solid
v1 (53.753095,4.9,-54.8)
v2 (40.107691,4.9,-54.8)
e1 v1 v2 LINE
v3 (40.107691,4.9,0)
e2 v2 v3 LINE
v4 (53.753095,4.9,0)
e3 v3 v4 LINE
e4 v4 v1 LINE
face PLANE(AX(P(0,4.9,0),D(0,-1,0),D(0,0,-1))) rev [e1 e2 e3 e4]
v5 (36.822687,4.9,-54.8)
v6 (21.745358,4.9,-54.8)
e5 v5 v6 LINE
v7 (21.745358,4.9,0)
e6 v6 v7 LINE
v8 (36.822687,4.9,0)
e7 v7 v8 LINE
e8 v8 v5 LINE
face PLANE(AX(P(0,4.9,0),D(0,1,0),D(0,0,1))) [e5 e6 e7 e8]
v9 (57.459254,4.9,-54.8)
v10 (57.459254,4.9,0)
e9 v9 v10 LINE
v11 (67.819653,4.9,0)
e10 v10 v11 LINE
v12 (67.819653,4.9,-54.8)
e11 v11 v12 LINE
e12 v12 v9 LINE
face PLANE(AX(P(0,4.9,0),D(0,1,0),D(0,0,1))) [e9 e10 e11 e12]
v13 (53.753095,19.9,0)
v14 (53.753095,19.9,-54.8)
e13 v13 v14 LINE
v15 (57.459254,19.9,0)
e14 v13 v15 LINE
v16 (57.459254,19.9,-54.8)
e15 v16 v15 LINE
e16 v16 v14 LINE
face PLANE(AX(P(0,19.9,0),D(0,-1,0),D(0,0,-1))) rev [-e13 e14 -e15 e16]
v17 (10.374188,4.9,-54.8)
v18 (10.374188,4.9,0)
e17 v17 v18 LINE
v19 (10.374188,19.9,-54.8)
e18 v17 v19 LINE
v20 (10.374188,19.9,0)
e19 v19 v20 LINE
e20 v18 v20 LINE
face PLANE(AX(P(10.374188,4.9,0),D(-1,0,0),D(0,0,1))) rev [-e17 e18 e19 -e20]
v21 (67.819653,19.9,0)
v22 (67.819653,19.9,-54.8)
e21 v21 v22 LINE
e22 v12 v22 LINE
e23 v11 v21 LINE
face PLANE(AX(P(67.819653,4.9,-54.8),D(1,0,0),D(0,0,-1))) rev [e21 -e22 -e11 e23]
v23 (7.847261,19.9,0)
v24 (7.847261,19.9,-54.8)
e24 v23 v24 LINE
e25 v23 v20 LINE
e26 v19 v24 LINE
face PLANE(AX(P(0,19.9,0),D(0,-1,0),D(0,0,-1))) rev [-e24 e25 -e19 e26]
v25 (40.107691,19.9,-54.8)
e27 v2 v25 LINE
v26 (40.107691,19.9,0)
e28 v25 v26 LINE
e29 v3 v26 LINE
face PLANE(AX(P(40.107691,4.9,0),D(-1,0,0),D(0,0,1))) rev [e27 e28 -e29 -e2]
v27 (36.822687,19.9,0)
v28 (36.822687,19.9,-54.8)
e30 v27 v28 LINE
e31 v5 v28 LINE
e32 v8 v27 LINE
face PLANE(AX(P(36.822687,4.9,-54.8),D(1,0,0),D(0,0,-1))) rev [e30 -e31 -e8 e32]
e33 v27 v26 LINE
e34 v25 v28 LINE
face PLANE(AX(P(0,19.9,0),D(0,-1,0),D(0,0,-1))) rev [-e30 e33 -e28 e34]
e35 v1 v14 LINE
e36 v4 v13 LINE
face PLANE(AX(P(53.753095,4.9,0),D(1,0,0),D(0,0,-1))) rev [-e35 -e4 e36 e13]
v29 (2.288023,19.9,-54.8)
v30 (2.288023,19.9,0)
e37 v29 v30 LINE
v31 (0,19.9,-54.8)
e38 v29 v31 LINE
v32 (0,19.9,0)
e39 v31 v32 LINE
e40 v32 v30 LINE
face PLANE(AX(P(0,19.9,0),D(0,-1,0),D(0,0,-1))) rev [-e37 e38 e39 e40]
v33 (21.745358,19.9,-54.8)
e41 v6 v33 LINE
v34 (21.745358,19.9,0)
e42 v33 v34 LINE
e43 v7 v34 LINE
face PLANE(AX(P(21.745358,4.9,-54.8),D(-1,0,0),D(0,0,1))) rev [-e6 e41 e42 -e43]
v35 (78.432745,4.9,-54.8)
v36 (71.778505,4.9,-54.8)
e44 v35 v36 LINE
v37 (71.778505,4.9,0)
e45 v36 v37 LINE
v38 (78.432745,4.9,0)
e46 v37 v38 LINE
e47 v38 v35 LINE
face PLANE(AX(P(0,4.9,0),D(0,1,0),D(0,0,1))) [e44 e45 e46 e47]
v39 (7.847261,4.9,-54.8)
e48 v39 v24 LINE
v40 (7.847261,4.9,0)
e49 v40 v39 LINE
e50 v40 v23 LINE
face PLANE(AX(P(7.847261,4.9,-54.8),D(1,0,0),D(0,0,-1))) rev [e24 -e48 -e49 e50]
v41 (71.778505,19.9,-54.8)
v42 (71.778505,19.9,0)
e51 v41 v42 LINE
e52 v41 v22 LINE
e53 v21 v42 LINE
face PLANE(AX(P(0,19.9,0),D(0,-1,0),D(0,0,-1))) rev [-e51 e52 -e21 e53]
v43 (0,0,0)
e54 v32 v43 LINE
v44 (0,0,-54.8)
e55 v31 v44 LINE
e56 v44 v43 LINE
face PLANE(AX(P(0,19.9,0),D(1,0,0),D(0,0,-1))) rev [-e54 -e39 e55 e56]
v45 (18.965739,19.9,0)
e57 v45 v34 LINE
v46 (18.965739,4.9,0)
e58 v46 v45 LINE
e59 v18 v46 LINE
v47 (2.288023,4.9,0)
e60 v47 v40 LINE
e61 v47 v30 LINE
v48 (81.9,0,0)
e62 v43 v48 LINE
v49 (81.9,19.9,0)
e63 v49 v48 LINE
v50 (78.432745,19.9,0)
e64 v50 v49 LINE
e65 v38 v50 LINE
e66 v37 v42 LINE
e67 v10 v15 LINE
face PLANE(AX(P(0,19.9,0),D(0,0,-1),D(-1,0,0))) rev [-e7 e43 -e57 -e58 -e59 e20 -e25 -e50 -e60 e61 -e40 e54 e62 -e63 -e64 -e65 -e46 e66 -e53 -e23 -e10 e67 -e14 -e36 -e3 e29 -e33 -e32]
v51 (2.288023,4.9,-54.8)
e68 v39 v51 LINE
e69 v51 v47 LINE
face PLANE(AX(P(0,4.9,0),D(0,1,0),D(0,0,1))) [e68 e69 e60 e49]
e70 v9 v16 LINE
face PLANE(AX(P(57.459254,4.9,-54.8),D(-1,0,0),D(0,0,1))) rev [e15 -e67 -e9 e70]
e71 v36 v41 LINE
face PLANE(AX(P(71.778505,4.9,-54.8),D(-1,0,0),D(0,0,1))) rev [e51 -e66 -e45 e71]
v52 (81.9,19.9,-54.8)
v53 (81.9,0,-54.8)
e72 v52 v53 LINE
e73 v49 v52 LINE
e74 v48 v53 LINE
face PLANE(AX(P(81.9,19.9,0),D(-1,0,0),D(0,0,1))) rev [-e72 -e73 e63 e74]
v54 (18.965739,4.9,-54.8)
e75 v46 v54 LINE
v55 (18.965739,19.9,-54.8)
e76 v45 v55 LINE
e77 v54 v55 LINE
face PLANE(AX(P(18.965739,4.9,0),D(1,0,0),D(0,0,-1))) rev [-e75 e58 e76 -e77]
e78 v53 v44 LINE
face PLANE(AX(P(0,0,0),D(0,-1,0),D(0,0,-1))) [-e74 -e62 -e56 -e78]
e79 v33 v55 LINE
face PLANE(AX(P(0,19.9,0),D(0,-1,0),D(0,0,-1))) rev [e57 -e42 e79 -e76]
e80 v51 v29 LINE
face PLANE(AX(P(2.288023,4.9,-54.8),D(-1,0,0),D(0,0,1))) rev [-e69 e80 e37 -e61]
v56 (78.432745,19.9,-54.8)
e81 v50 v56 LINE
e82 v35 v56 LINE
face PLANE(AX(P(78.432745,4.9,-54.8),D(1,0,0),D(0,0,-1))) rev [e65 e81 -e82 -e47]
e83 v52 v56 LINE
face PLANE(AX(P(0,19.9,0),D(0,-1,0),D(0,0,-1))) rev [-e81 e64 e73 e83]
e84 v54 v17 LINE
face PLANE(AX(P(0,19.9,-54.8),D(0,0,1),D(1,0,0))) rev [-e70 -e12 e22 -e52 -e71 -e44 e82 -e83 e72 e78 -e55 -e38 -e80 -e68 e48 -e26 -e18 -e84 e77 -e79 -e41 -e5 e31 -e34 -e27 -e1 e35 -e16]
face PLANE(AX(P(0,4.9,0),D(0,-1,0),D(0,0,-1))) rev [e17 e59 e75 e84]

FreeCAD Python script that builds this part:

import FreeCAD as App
import Part
import Sketcher

V = App.Vector


def add_polygon(sketch, points):
    """Adds a closed chain of lines whose ends are joined by coincident constraints."""
    first, n = sketch.GeometryCount, len(points)
    for a, b in zip(points, points[1:] + points[:1]):
        sketch.addGeometry(Part.LineSegment(App.Vector(*a, 0), App.Vector(*b, 0)), False)
    for i in range(n):
        sketch.addConstraint(Sketcher.Constraint("Coincident", first + i, 2, first + (i + 1) % n, 1))

doc = App.newDocument("Part")
body = doc.addObject("PartDesign::Body", "Body")

# Sketch on XZ plane
sketch1 = body.newObject("Sketcher::SketchObject", "Sketch")
sketch1.AttachmentSupport = (doc.getObject("XZ_Plane"), [""])
sketch1.MapMode = "FlatFace"
add_polygon(sketch1, [(0, -54.8), (0, 0), (81.9, 0), (81.9, -54.8)])  # lines 0-3
sketch1.addConstraint([
    Sketcher.Constraint("Vertical", 0),
    Sketcher.Constraint("Horizontal", 1),
    Sketcher.Constraint("Vertical", 2),
    Sketcher.Constraint("Horizontal", 3),
    Sketcher.Constraint("Coincident", 0, 2, -1, 1),
    Sketcher.Constraint("DistanceX", 1, 1, 1, 2, 81.9),
    Sketcher.Constraint("DistanceY", 0, 1, 0, 2, 54.8),
])
pad1 = body.newObject("PartDesign::Pad", "Pad")
pad1.Profile = sketch1
pad1.Length = 19.9
pad1.Reversed = True

# Sketch on XZ plane
sketch2 = body.newObject("Sketcher::SketchObject", "Sketch001")
sketch2.AttachmentSupport = (doc.getObject("XZ_Plane"), [""])
sketch2.MapMode = "FlatFace"
sketch2.AttachmentOffset = App.Placement(V(0, 0, -19.9), App.Rotation())
add_polygon(sketch2, [(10.374188, -54.8), (10.374188, 0), (18.965739, 0), (18.965739, -54.8)])  # lines 0-3
add_polygon(sketch2, [(21.745358, -54.8), (21.745358, 0), (36.822687, 0), (36.822687, -54.8)])  # lines 4-7
add_polygon(sketch2, [(40.107691, -54.8), (40.107691, 0), (53.753095, 0), (53.753095, -54.8)])  # lines 8-11
add_polygon(sketch2, [(57.459254, -54.8), (57.459254, 0), (67.819653, 0), (67.819653, -54.8)])  # lines 12-15
add_polygon(sketch2, [(71.778505, -54.8), (71.778505, 0), (78.432745, 0), (78.432745, -54.8)])  # lines 16-19
add_polygon(sketch2, [(2.288023, -54.8), (2.288023, 0), (7.847261, 0), (7.847261, -54.8)])  # lines 20-23
sketch2.addConstraint([
    Sketcher.Constraint("Vertical", 0),
    Sketcher.Constraint("Horizontal", 1),
    Sketcher.Constraint("Vertical", 2),
    Sketcher.Constraint("Horizontal", 3),
    Sketcher.Constraint("Vertical", 4),
    Sketcher.Constraint("Horizontal", 5),
    Sketcher.Constraint("Vertical", 6),
    Sketcher.Constraint("Horizontal", 7),
    Sketcher.Constraint("Vertical", 8),
    Sketcher.Constraint("Horizontal", 9),
    Sketcher.Constraint("Vertical", 10),
    Sketcher.Constraint("Horizontal", 11),
    Sketcher.Constraint("Vertical", 12),
    Sketcher.Constraint("Horizontal", 13),
    Sketcher.Constraint("Vertical", 14),
    Sketcher.Constraint("Horizontal", 15),
    Sketcher.Constraint("Vertical", 16),
    Sketcher.Constraint("Horizontal", 17),
    Sketcher.Constraint("Vertical", 18),
    Sketcher.Constraint("Horizontal", 19),
    Sketcher.Constraint("Vertical", 20),
    Sketcher.Constraint("Horizontal", 21),
    Sketcher.Constraint("Vertical", 22),
    Sketcher.Constraint("Horizontal", 23),
    Sketcher.Constraint("PointOnObject", 0, 2, -1),
    Sketcher.Constraint("PointOnObject", 4, 2, -1),
    Sketcher.Constraint("PointOnObject", 8, 2, -1),
    Sketcher.Constraint("PointOnObject", 12, 2, -1),
    Sketcher.Constraint("PointOnObject", 16, 2, -1),
    Sketcher.Constraint("PointOnObject", 20, 2, -1),
    Sketcher.Constraint("Horizontal", 3, 2, 6, 2),
    Sketcher.Constraint("Horizontal", 7, 2, 10, 2),
    Sketcher.Constraint("Horizontal", 11, 2, 14, 2),
    Sketcher.Constraint("Horizontal", 15, 2, 18, 2),
    Sketcher.Constraint("Horizontal", 19, 2, 22, 2),
    Sketcher.Constraint("DistanceY", 0, 1, 0, 2, 54.8),
    Sketcher.Constraint("DistanceX", 13, 1, 13, 2, 10.360399),
    Sketcher.Constraint("DistanceX", 1, 1, 1, 2, 8.59155),
    Sketcher.Constraint("DistanceX", 5, 1, 5, 2, 15.077329),
    Sketcher.Constraint("DistanceX", 17, 1, 17, 2, 6.65424),
    Sketcher.Constraint("DistanceX", 21, 1, 21, 2, 5.559239),
    Sketcher.Constraint("DistanceX", 0, 2, 5, 2, 26.448499),
    Sketcher.Constraint("DistanceX", 9, 1, 9, 2, 13.645404),
    Sketcher.Constraint("DistanceX", -1, 1, 0, 2, 10.374188),
    Sketcher.Constraint("DistanceX", -1, 1, 8, 2, 40.107691),
    Sketcher.Constraint("DistanceX", -1, 1, 21, 2, 7.847261),
    Sketcher.Constraint("DistanceX", 9, 2, 12, 2, 3.706159),
    Sketcher.Constraint("DistanceX", 13, 2, 16, 2, 3.958852),
])
pocket1 = body.newObject("PartDesign::Pocket", "Pocket")
pocket1.Profile = sketch2
pocket1.Length = 15
pocket1.Reversed = True

doc.recompute()
